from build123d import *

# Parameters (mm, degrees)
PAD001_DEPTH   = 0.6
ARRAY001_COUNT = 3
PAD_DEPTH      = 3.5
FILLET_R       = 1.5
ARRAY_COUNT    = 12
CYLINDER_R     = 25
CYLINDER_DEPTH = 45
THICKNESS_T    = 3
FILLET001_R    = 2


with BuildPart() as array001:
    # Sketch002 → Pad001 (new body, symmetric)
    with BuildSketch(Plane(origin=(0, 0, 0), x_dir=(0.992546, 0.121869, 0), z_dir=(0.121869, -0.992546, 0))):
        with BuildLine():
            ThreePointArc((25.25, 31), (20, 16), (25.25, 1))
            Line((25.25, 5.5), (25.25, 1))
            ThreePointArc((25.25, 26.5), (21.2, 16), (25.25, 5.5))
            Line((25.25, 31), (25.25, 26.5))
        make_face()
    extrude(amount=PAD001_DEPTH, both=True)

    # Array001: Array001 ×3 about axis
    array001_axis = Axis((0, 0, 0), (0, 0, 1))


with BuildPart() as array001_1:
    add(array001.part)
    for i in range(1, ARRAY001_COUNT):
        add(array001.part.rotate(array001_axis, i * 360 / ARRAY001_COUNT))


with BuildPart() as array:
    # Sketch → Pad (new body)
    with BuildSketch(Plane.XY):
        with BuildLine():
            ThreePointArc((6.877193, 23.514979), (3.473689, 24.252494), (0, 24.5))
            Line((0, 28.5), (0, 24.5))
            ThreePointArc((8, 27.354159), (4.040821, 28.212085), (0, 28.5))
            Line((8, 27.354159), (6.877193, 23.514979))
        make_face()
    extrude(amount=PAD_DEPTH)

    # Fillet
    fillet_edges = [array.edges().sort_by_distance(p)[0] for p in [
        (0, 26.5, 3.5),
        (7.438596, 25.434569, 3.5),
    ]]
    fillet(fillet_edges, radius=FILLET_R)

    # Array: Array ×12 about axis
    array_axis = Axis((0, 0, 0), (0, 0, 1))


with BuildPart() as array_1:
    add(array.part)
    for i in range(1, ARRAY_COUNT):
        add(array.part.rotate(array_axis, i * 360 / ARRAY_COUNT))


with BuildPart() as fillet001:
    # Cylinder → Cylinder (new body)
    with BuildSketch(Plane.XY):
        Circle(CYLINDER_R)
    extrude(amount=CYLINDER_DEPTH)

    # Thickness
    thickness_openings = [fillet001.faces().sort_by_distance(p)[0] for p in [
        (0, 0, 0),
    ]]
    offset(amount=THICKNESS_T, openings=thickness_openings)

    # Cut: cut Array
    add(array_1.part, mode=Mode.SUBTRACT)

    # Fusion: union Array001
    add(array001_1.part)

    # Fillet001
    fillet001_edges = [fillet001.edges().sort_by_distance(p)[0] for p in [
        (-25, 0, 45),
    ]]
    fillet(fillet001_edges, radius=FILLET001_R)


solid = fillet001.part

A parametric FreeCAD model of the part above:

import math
import FreeCAD as App
import Part
import Sketcher


def edges_at(feature, points):
    """Names of the edges that pass closest to the given points."""
    edges = feature.Shape.Edges
    near = lambda p: min(range(len(edges)), key=lambda i: edges[i].distToShape(Part.Vertex(*p))[0])
    return sorted({f"Edge{near(p) + 1}" for p in points})


def faces_at(feature, points):
    """Names of the faces that lie closest to the given points."""
    faces = feature.Shape.Faces
    near = lambda p: min(range(len(faces)), key=lambda i: faces[i].distToShape(Part.Vertex(*p))[0])
    return sorted({f"Face{near(p) + 1}" for p in points})

doc = App.newDocument("Part")
body = doc.addObject("PartDesign::Body", "Body")

# Sketch on an angled plane
sketch1 = doc.addObject("Sketcher::SketchObject", "Sketch")
body.addObject(sketch1)
sketch1.Placement = App.Placement(App.Vector(0, 0, 0), App.Rotation(App.Vector(0.992546191, 0.121869023, 0), App.Vector(0, 0, 1), App.Vector(0.121869023, -0.992546191, 0), "ZXY"))
sketch1.addGeometry(Part.ArcOfCircle(Part.Circle(App.Vector(44.1, 16, 0), App.Vector(0, 0, 1), 24.1), math.radians(141), math.radians(219)), False)
sketch1.addGeometry(Part.LineSegment(App.Vector(25.3, 1, 0), App.Vector(25.3, 5.5, 0)), False)
sketch1.addGeometry(Part.ArcOfCircle(Part.Circle(App.Vector(36.8, 16, 0), App.Vector(0, 0, 1), 15.6), math.radians(138), math.radians(222)), False)
sketch1.addGeometry(Part.LineSegment(App.Vector(25.3, 26.5, 0), App.Vector(25.3, 31, 0)), False)
sketch1.addConstraint(Sketcher.Constraint("Coincident", 0, 2, 1, 1))
sketch1.addConstraint(Sketcher.Constraint("Coincident", 1, 2, 2, 2))
sketch1.addConstraint(Sketcher.Constraint("Coincident", 2, 1, 3, 1))
sketch1.addConstraint(Sketcher.Constraint("Coincident", 3, 2, 0, 1))
sketch1.addConstraint(Sketcher.Constraint("Vertical", 1))
sketch1.addConstraint(Sketcher.Constraint("Vertical", 3))
sketch1.addConstraint(Sketcher.Constraint("Horizontal", 0, 3, 2, 3))
sketch1.addConstraint(Sketcher.Constraint("Vertical", 1, 2, 2, 1))
sketch1.addConstraint(Sketcher.Constraint("DistanceY", 1, 1, 1, 2, 4.5))
sketch1.addConstraint(Sketcher.Constraint("DistanceY", -1, 1, 0, 3, 16.0))
sketch1.addConstraint(Sketcher.Constraint("DistanceY", -1, 1, 0, 2, 1.0))
sketch1.addConstraint(Sketcher.Constraint("DistanceX", -1, 1, 0, 2, 25.25))
sketch1.addConstraint(Sketcher.Constraint("Radius", 0, 24.053571))
sketch1.addConstraint(Sketcher.Constraint("Radius", 2, 15.636111))
pad1 = doc.addObject("PartDesign::Pad", "Pad")
body.addObject(pad1)
pad1.Profile = sketch1
pad1.Length = 1.2
pad1.Midplane = True
body2 = doc.addObject("PartDesign::Body", "Body001")
body2.AllowCompound = True
doc.recompute()

body2.BaseFeature = body
doc.recompute()

body3 = doc.addObject("PartDesign::Body", "Body002")
body3.BaseFeature = body
body3.Placement = App.Placement(App.Vector(0, 0, 0), App.Rotation(App.Vector(0, 0, 1), 120))
boolean = doc.addObject("PartDesign::Boolean", "Boolean")
body2.addObject(boolean)
boolean.Type = "Fuse"
boolean.addObjects([body3])
doc.recompute()

body.Placement = App.Placement(App.Vector(0, 0, 0), App.Rotation(App.Vector(0, 0, 1), 240))
boolean2 = doc.addObject("PartDesign::Boolean", "Boolean001")
body2.addObject(boolean2)
boolean2.Type = "Fuse"
boolean2.addObjects([body])
body4 = doc.addObject("PartDesign::Body", "Body003")

# Sketch on XY plane
sketch2 = doc.addObject("Sketcher::SketchObject", "Sketch001")
body4.addObject(sketch2)
sketch2.AttachmentSupport = (doc.getObject("XY_Plane003"), [""])
sketch2.MapMode = "FlatFace"
sketch2.addGeometry(Part.ArcOfCircle(Part.Circle(App.Vector(0, 0, 0), App.Vector(0, 0, 1), 24.5), math.radians(73.7), math.radians(90)), False)
sketch2.addGeometry(Part.LineSegment(App.Vector(6.9, 23.5, 0), App.Vector(8, 27.4, 0)), False)
sketch2.addGeometry(Part.ArcOfCircle(Part.Circle(App.Vector(0, 0, 0), App.Vector(0, 0, 1), 28.5), math.radians(73.7), math.radians(90)), False)
sketch2.addGeometry(Part.LineSegment(App.Vector(0, 28.5, 0), App.Vector(0, 24.5, 0)), False)
sketch2.addConstraint(Sketcher.Constraint("Coincident", 0, 1, 1, 1))
sketch2.addConstraint(Sketcher.Constraint("Coincident", 1, 2, 2, 1))
sketch2.addConstraint(Sketcher.Constraint("Coincident", 2, 2, 3, 1))
sketch2.addConstraint(Sketcher.Constraint("Coincident", 3, 2, 0, 2))
sketch2.addConstraint(Sketcher.Constraint("Vertical", 3))
sketch2.addConstraint(Sketcher.Constraint("Coincident", 2, 3, 0, 3))
sketch2.addConstraint(Sketcher.Constraint("PointOnObject", 2, 2, -2))
sketch2.addConstraint(Sketcher.Constraint("DistanceY", 3, 2, 3, 1, 4.0))
sketch2.addConstraint(Sketcher.Constraint("DistanceX", -1, 1, 1, 2, 8.0))
sketch2.addConstraint(Sketcher.Constraint("DistanceY", -1, 1, 2, 2, 28.5))
sketch2.addConstraint(Sketcher.Constraint("Radius", 0, 24.50006))
sketch2.addConstraint(Sketcher.Constraint("DistanceX", 2, 3, 0, 1, 6.8772))
sketch2.addConstraint(Sketcher.Constraint("DistanceY", -1, 1, 1, 2, 27.354159))
pad2 = doc.addObject("PartDesign::Pad", "Pad001")
body4.addObject(pad2)
pad2.Profile = sketch2
pad2.Length = 3.5
doc.recompute()

fillet = doc.addObject("PartDesign::Fillet", "Fillet")
body4.addObject(fillet)
fillet.Base = (pad2, edges_at(pad2, [(0, 26.5, 3.5), (7.439, 25.435, 3.5)]))
fillet.Radius = 1.5
body5 = doc.addObject("PartDesign::Body", "Body004")
body5.AllowCompound = True
doc.recompute()

body5.BaseFeature = body4
doc.recompute()

body6 = doc.addObject("PartDesign::Body", "Body005")
body6.BaseFeature = body4
body6.Placement = App.Placement(App.Vector(0, 0, 0), App.Rotation(App.Vector(0, 0, 1), 30))
boolean3 = doc.addObject("PartDesign::Boolean", "Boolean002")
body5.addObject(boolean3)
boolean3.Type = "Fuse"
boolean3.addObjects([body6])
doc.recompute()

body7 = doc.addObject("PartDesign::Body", "Body006")
body7.BaseFeature = body4
body7.Placement = App.Placement(App.Vector(0, 0, 0), App.Rotation(App.Vector(0, 0, 1), 60))
boolean4 = doc.addObject("PartDesign::Boolean", "Boolean003")
body5.addObject(boolean4)
boolean4.Type = "Fuse"
boolean4.addObjects([body7])
doc.recompute()

body8 = doc.addObject("PartDesign::Body", "Body007")
body8.BaseFeature = body4
body8.Placement = App.Placement(App.Vector(0, 0, 0), App.Rotation(App.Vector(0, 0, 1), 90))
boolean5 = doc.addObject("PartDesign::Boolean", "Boolean004")
body5.addObject(boolean5)
boolean5.Type = "Fuse"
boolean5.addObjects([body8])
doc.recompute()

body9 = doc.addObject("PartDesign::Body", "Body008")
body9.BaseFeature = body4
body9.Placement = App.Placement(App.Vector(0, 0, 0), App.Rotation(App.Vector(0, 0, 1), 120))
boolean6 = doc.addObject("PartDesign::Boolean", "Boolean005")
body5.addObject(boolean6)
boolean6.Type = "Fuse"
boolean6.addObjects([body9])
doc.recompute()

body10 = doc.addObject("PartDesign::Body", "Body009")
body10.BaseFeature = body4
body10.Placement = App.Placement(App.Vector(0, 0, 0), App.Rotation(App.Vector(0, 0, 1), 150))
boolean7 = doc.addObject("PartDesign::Boolean", "Boolean006")
body5.addObject(boolean7)
boolean7.Type = "Fuse"
boolean7.addObjects([body10])
doc.recompute()

body11 = doc.addObject("PartDesign::Body", "Body010")
body11.BaseFeature = body4
body11.Placement = App.Placement(App.Vector(0, 0, 0), App.Rotation(App.Vector(0, 0, 1), 180))
boolean8 = doc.addObject("PartDesign::Boolean", "Boolean007")
body5.addObject(boolean8)
boolean8.Type = "Fuse"
boolean8.addObjects([body11])
doc.recompute()

body12 = doc.addObject("PartDesign::Body", "Body011")
body12.BaseFeature = body4
body12.Placement = App.Placement(App.Vector(0, 0, 0), App.Rotation(App.Vector(0, 0, 1), 210))
boolean9 = doc.addObject("PartDesign::Boolean", "Boolean008")
body5.addObject(boolean9)
boolean9.Type = "Fuse"
boolean9.addObjects([body12])
doc.recompute()

body13 = doc.addObject("PartDesign::Body", "Body012")
body13.BaseFeature = body4
body13.Placement = App.Placement(App.Vector(0, 0, 0), App.Rotation(App.Vector(0, 0, 1), 240))
boolean10 = doc.addObject("PartDesign::Boolean", "Boolean009")
body5.addObject(boolean10)
boolean10.Type = "Fuse"
boolean10.addObjects([body13])
doc.recompute()

body14 = doc.addObject("PartDesign::Body", "Body013")
body14.BaseFeature = body4
body14.Placement = App.Placement(App.Vector(0, 0, 0), App.Rotation(App.Vector(0, 0, 1), 270))
boolean11 = doc.addObject("PartDesign::Boolean", "Boolean010")
body5.addObject(boolean11)
boolean11.Type = "Fuse"
boolean11.addObjects([body14])
doc.recompute()

body15 = doc.addObject("PartDesign::Body", "Body014")
body15.BaseFeature = body4
body15.Placement = App.Placement(App.Vector(0, 0, 0), App.Rotation(App.Vector(0, 0, 1), 300))
boolean12 = doc.addObject("PartDesign::Boolean", "Boolean011")
body5.addObject(boolean12)
boolean12.Type = "Fuse"
boolean12.addObjects([body15])
doc.recompute()

body4.Placement = App.Placement(App.Vector(0, 0, 0), App.Rotation(App.Vector(0, 0, 1), 330))
boolean13 = doc.addObject("PartDesign::Boolean", "Boolean012")
body5.addObject(boolean13)
boolean13.Type = "Fuse"
boolean13.addObjects([body4])
body16 = doc.addObject("PartDesign::Body", "Body015")

# Sketch on XY plane
sketch3 = doc.addObject("Sketcher::SketchObject", "Sketch002")
body16.addObject(sketch3)
sketch3.AttachmentSupport = (doc.getObject("XY_Plane015"), [""])
sketch3.MapMode = "FlatFace"
sketch3.addGeometry(Part.Circle(App.Vector(0, 0, 0), App.Vector(0, 0, 1), 25), False)
sketch3.addConstraint(Sketcher.Constraint("Coincident", 0, 3, -1, 1))
sketch3.addConstraint(Sketcher.Constraint("Diameter", 0, 50.0))
pad3 = doc.addObject("PartDesign::Pad", "Pad002")
body16.addObject(pad3)
pad3.Profile = sketch3
pad3.Length = 45
doc.recompute()

thickness = doc.addObject("PartDesign::Thickness", "Thickness")
body16.addObject(thickness)
thickness.Base = (pad3, faces_at(pad3, [(0, 0, 0)]))
thickness.Value = 3
thickness.Reversed = False
thickness.Join = "Arc"
doc.recompute()

boolean14 = doc.addObject("PartDesign::Boolean", "Boolean013")
body16.addObject(boolean14)
boolean14.Type = "Cut"
boolean14.addObjects([body5])
doc.recompute()

boolean15 = doc.addObject("PartDesign::Boolean", "Boolean014")
body16.addObject(boolean15)
boolean15.Type = "Fuse"
boolean15.addObjects([body2])
doc.recompute()

fillet2 = doc.addObject("PartDesign::Fillet", "Fillet001")
body16.addObject(fillet2)
fillet2.Base = (boolean15, edges_at(boolean15, [(-25, 0, 45)]))
fillet2.Radius = 2

doc.recompute()
